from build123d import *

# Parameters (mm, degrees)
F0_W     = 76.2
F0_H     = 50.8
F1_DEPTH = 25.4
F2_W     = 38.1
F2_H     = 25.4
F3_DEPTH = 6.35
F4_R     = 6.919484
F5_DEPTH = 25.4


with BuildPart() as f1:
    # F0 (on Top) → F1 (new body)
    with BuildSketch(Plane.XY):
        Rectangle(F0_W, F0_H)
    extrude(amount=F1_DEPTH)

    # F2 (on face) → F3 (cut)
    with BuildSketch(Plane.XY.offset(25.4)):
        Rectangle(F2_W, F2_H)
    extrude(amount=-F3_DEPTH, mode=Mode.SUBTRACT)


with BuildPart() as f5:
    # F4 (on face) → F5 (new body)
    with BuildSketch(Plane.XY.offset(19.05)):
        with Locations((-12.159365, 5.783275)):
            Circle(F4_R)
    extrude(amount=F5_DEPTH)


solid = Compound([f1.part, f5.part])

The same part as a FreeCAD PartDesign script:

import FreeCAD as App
import Part
import Sketcher
Q = App.Units.Quantity

doc = App.newDocument("Part")
body = doc.addObject("PartDesign::Body", "Body")

# Sketch on XY plane
sketch1 = body.newObject("Sketcher::SketchObject", "Sketch")
sketch1.AttachmentSupport = (doc.getObject("XY_Plane"), [""])
sketch1.MapMode = "FlatFace"
sketch1.addGeometry(Part.LineSegment(App.Vector(-38, 25, 0), App.Vector(-38, -25, 0)), False)
sketch1.addGeometry(Part.LineSegment(App.Vector(-38, -25, 0), App.Vector(38, -25, 0)), False)
sketch1.addGeometry(Part.LineSegment(App.Vector(38, -25, 0), App.Vector(38, 25, 0)), False)
sketch1.addGeometry(Part.LineSegment(App.Vector(38, 25, 0), App.Vector(-38, 25, 0)), False)
sketch1.addConstraint(Sketcher.Constraint("Coincident", 0, 2, 1, 1))
sketch1.addConstraint(Sketcher.Constraint("Coincident", 1, 2, 2, 1))
sketch1.addConstraint(Sketcher.Constraint("Coincident", 2, 2, 3, 1))
sketch1.addConstraint(Sketcher.Constraint("Coincident", 3, 2, 0, 1))
sketch1.addConstraint(Sketcher.Constraint("Vertical", 0))
sketch1.addConstraint(Sketcher.Constraint("Horizontal", 1))
sketch1.addConstraint(Sketcher.Constraint("Vertical", 2))
sketch1.addConstraint(Sketcher.Constraint("Horizontal", 3))
sketch1.addConstraint(Sketcher.Constraint("Symmetric", 0, 2, 2, 2, -1, 1))
sketch1.addConstraint(Sketcher.Constraint("DistanceX", 1, 1, 1, 2, Q("3 in")))
sketch1.addConstraint(Sketcher.Constraint("DistanceY", 0, 2, 0, 1, Q("2 in")))
pad1 = body.newObject("PartDesign::Pad", "Pad")
pad1.Profile = sketch1
pad1.Length = Q("1 in")

# Sketch on XY plane
sketch2 = body.newObject("Sketcher::SketchObject", "Sketch001")
sketch2.AttachmentSupport = (doc.getObject("XY_Plane"), [""])
sketch2.MapMode = "FlatFace"
sketch2.AttachmentOffset = App.Placement(App.Vector(0, 0, 1 * 25.4), App.Rotation())
sketch2.addGeometry(Part.LineSegment(App.Vector(-19, 13, 0), App.Vector(-19, -13, 0)), False)
sketch2.addGeometry(Part.LineSegment(App.Vector(-19, -13, 0), App.Vector(19, -13, 0)), False)
sketch2.addGeometry(Part.LineSegment(App.Vector(19, -13, 0), App.Vector(19, 13, 0)), False)
sketch2.addGeometry(Part.LineSegment(App.Vector(19, 13, 0), App.Vector(-19, 13, 0)), False)
sketch2.addConstraint(Sketcher.Constraint("Coincident", 0, 2, 1, 1))
sketch2.addConstraint(Sketcher.Constraint("Coincident", 1, 2, 2, 1))
sketch2.addConstraint(Sketcher.Constraint("Coincident", 2, 2, 3, 1))
sketch2.addConstraint(Sketcher.Constraint("Coincident", 3, 2, 0, 1))
sketch2.addConstraint(Sketcher.Constraint("Vertical", 0))
sketch2.addConstraint(Sketcher.Constraint("Horizontal", 1))
sketch2.addConstraint(Sketcher.Constraint("Vertical", 2))
sketch2.addConstraint(Sketcher.Constraint("Horizontal", 3))
sketch2.addConstraint(Sketcher.Constraint("Symmetric", 0, 2, 2, 2, -1, 1))
sketch2.addConstraint(Sketcher.Constraint("DistanceY", 0, 2, 0, 1, Q("1 in")))
sketch2.addConstraint(Sketcher.Constraint("DistanceX", 1, 1, 1, 2, Q("1.5 in")))
pocket1 = body.newObject("PartDesign::Pocket", "Pocket")
pocket1.Profile = sketch2
pocket1.Length = Q("0.25 in")
body2 = doc.addObject("PartDesign::Body", "Body001")

# Sketch on XY plane
sketch3 = body2.newObject("Sketcher::SketchObject", "Sketch002")
sketch3.AttachmentSupport = (doc.getObject("XY_Plane001"), [""])
sketch3.MapMode = "FlatFace"
sketch3.AttachmentOffset = App.Placement(App.Vector(0, 0, 0.75 * 25.4), App.Rotation())
sketch3.addGeometry(Part.Circle(App.Vector(-12, 6, 0), App.Vector(0, 0, 1), 7), False)
sketch3.addConstraint(Sketcher.Constraint("Diameter", 0, 13.838968))
sketch3.addConstraint(Sketcher.Constraint("DistanceX", 0, 3, -1, 1, 12.159365))
sketch3.addConstraint(Sketcher.Constraint("DistanceY", -1, 1, 0, 3, 5.783275))
pad2 = body2.newObject("PartDesign::Pad", "Pad001")
pad2.Profile = sketch3
pad2.Length = Q("1 in")

doc.recompute()
